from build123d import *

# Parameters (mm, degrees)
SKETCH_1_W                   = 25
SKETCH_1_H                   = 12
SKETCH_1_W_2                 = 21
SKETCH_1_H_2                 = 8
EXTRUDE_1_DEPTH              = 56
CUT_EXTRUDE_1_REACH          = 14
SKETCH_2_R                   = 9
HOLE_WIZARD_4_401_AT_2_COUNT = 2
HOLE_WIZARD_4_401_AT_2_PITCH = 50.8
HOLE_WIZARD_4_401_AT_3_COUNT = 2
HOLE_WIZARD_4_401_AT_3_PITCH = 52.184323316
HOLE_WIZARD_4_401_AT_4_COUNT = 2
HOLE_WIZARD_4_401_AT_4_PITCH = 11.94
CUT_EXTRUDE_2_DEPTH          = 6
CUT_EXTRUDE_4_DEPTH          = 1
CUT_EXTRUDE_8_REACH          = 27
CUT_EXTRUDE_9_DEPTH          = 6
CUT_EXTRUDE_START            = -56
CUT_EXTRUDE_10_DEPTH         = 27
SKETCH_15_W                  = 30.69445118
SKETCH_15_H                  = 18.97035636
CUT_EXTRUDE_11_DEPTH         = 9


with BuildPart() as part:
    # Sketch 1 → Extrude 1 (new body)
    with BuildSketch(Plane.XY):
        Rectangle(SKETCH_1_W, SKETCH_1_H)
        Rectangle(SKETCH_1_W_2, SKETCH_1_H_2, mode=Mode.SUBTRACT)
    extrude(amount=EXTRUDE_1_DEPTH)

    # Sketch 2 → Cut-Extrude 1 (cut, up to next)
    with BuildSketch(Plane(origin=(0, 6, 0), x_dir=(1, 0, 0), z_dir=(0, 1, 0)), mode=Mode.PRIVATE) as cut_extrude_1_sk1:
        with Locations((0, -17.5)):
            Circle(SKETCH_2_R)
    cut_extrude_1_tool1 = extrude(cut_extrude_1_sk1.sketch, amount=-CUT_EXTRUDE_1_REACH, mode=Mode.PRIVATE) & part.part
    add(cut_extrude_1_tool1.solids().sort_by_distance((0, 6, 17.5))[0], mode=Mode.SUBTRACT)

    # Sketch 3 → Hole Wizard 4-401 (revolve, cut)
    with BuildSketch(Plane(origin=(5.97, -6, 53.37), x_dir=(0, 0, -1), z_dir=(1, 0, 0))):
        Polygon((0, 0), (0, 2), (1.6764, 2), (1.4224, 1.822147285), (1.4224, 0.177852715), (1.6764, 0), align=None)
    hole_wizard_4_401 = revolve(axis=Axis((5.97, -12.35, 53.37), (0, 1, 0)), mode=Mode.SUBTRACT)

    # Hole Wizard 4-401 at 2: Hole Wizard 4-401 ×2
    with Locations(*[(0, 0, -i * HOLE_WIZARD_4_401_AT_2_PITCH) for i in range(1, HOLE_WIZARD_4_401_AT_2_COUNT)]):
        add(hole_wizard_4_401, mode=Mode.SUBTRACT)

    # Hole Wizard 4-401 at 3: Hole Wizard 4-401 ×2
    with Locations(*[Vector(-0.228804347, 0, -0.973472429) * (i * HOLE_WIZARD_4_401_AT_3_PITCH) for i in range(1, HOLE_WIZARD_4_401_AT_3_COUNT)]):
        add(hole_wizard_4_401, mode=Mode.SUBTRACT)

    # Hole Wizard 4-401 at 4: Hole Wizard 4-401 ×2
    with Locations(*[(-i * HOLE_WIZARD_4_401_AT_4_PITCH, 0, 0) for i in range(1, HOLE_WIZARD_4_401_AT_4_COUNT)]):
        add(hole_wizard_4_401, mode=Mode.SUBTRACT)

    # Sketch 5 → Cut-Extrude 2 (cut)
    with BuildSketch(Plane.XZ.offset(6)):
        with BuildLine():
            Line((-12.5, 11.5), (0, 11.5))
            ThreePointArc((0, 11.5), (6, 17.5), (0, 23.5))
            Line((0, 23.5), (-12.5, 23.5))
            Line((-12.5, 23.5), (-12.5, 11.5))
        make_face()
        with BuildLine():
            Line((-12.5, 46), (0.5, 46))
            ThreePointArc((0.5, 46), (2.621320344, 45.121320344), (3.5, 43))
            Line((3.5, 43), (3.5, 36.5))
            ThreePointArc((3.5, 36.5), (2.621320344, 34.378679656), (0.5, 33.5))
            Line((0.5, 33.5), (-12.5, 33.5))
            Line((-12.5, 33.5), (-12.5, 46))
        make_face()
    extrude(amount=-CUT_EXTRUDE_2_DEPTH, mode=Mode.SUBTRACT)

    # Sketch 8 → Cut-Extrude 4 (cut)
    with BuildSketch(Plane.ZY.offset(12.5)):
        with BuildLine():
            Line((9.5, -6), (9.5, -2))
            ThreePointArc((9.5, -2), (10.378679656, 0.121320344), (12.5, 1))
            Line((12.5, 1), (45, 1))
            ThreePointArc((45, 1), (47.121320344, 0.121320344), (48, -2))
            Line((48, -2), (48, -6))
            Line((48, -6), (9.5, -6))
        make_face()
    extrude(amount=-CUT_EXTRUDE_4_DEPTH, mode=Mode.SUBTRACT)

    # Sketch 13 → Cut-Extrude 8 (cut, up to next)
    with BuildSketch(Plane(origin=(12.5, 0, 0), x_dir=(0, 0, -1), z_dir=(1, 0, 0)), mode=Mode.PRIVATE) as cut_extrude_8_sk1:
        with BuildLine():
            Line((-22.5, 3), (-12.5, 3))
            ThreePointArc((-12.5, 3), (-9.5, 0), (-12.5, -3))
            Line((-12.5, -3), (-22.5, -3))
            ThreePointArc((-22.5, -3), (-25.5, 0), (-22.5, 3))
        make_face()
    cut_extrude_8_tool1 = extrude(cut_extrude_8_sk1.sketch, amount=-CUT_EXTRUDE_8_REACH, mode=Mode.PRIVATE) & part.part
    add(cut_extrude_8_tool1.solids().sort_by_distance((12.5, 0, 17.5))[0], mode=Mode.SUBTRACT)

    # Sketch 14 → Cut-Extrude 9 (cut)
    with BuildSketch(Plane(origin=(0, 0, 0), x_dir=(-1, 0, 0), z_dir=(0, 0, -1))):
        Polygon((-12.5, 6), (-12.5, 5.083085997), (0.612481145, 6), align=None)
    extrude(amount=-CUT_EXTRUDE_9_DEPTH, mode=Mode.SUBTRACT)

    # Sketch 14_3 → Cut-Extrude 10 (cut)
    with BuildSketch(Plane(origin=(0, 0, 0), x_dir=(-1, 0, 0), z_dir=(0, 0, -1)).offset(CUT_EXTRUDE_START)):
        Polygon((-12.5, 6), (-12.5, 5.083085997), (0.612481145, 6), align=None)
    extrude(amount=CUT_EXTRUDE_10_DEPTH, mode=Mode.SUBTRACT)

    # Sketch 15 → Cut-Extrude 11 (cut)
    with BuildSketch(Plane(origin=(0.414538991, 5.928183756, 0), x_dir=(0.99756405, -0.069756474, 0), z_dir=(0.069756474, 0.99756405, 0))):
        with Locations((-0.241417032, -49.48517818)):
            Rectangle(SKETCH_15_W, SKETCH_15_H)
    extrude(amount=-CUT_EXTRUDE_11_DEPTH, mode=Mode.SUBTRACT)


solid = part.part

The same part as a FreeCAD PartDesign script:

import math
import FreeCAD as App
import Part
import Sketcher

V = App.Vector
Q = App.Units.Quantity

doc = App.newDocument("Part")
body = doc.addObject("PartDesign::Body", "Body")

# Sketch on XY plane
sketch1 = body.newObject("Sketcher::SketchObject", "Sketch")
sketch1.AttachmentSupport = (doc.getObject("XY_Plane"), [""])
sketch1.MapMode = "FlatFace"
sketch1.addGeometry([
    Part.LineSegment(V(-12, 6, 0), V(-12, -6, 0)),  # 0
    Part.LineSegment(V(-12, -6, 0), V(12, -6, 0)),  # 1
    Part.LineSegment(V(12, -6, 0), V(12, 6, 0)),  # 2
    Part.LineSegment(V(12, 6, 0), V(-12, 6, 0)),  # 3
    Part.LineSegment(V(10, -4, 0), V(-10, -4, 0)),  # 4
    Part.LineSegment(V(-10, -4, 0), V(-10, 4, 0)),  # 5
    Part.LineSegment(V(-10, 4, 0), V(10, 4, 0)),  # 6
    Part.LineSegment(V(10, 4, 0), V(10, -4, 0)),  # 7
], False)
sketch1.addConstraint([
    Sketcher.Constraint("Coincident", 0, 2, 1, 1),
    Sketcher.Constraint("Coincident", 1, 2, 2, 1),
    Sketcher.Constraint("Coincident", 2, 2, 3, 1),
    Sketcher.Constraint("Coincident", 3, 2, 0, 1),
    Sketcher.Constraint("Coincident", 4, 2, 5, 1),
    Sketcher.Constraint("Coincident", 5, 2, 6, 1),
    Sketcher.Constraint("Coincident", 6, 2, 7, 1),
    Sketcher.Constraint("Coincident", 7, 2, 4, 1),
    Sketcher.Constraint("Vertical", 0),
    Sketcher.Constraint("Horizontal", 1),
    Sketcher.Constraint("Vertical", 2),
    Sketcher.Constraint("Horizontal", 3),
    Sketcher.Constraint("Horizontal", 4),
    Sketcher.Constraint("Vertical", 5),
    Sketcher.Constraint("Horizontal", 6),
    Sketcher.Constraint("Vertical", 7),
    Sketcher.Constraint("Symmetric", 0, 2, 2, 2, -1, 1),
    Sketcher.Constraint("Symmetric", 4, 2, 6, 2, -1, 1),
    Sketcher.Constraint("DistanceX", 1, 1, 1, 2, Q("25 mm")),
    Sketcher.Constraint("DistanceX", 4, 2, 4, 1, Q("21 mm")),
    Sketcher.Constraint("DistanceY", 0, 2, 0, 1, Q("12 mm")),
    Sketcher.Constraint("DistanceY", 5, 1, 5, 2, Q("8 mm")),
])
pad1 = body.newObject("PartDesign::Pad", "Pad")
pad1.Profile = sketch1
pad1.Length = 56

# Sketch on XZ plane
sketch2 = body.newObject("Sketcher::SketchObject", "Sketch001")
sketch2.AttachmentSupport = (doc.getObject("XZ_Plane"), [""])
sketch2.MapMode = "FlatFace"
sketch2.AttachmentOffset = App.Placement(V(0, 0, -6), App.Rotation())
sketch2.addGeometry(Part.Circle(V(0, 18, 0), V(0, 0, 1), 9), False)
sketch2.addConstraint([
    Sketcher.Constraint("PointOnObject", 0, 3, -2),
    Sketcher.Constraint("Diameter", 0, Q("18 mm")),
    Sketcher.Constraint("DistanceY", -1, 1, 0, 3, Q("17.5 mm")),
])
pocket1 = body.newObject("PartDesign::Pocket", "Pocket")
pocket1.Profile = sketch2
pocket1.Type = "UpToFirst"
pocket1.Reversed = True

# Sketch on YZ plane
sketch3 = body.newObject("Sketcher::SketchObject", "Sketch002")
sketch3.AttachmentSupport = (doc.getObject("YZ_Plane"), [""])
sketch3.MapMode = "FlatFace"
sketch3.AttachmentOffset = App.Placement(V(0, 0, 5.97), App.Rotation())
sketch3.addGeometry([
    Part.LineSegment(V(-4, 53.37, 0), V(-6, 53.37, 0)),  # 0
    Part.LineSegment(V(-6, 53.37, 0), V(-6, 51.69, 0)),  # 1
    Part.LineSegment(V(-6, 51.69, 0), V(-5.82, 51.95, 0)),  # 2
    Part.LineSegment(V(-5.82, 51.95, 0), V(-4.18, 51.95, 0)),  # 3
    Part.LineSegment(V(-4.18, 51.95, 0), V(-4, 51.69, 0)),  # 4
    Part.LineSegment(V(-4, 51.69, 0), V(-4, 53.37, 0)),  # 5
], False)
sketch3.addGeometry(Part.LineSegment(V(-6, 53.37, 0), V(-4, 53.37, 0)), True)  # axis
sketch3.addConstraint([
    Sketcher.Constraint("Coincident", 0, 2, 1, 1),
    Sketcher.Constraint("Coincident", 1, 2, 2, 1),
    Sketcher.Constraint("Coincident", 2, 2, 3, 1),
    Sketcher.Constraint("Coincident", 3, 2, 4, 1),
    Sketcher.Constraint("Coincident", 4, 2, 5, 1),
    Sketcher.Constraint("Coincident", 5, 2, 0, 1),
    Sketcher.Constraint("Horizontal", 0),
    Sketcher.Constraint("Vertical", 1),
    Sketcher.Constraint("Horizontal", 3),
    Sketcher.Constraint("Vertical", 5),
    Sketcher.Constraint("Horizontal", 6),
    Sketcher.Constraint("Coincident", 6, 1, 0, 2),
    Sketcher.Constraint("Horizontal", 1, 2, 4, 2),
    Sketcher.Constraint("Vertical", 4, 2, 6, 2),
    Sketcher.Constraint("Equal", 2, 4),
    Sketcher.Constraint("DistanceX", 0, 2, 0, 1, Q("2 mm")),
    Sketcher.Constraint("Angle", 2, Q("55 deg")),
    Sketcher.Constraint("DistanceX", 0, 2, -1, 1, Q("6 mm")),
    Sketcher.Constraint("DistanceY", -1, 1, 0, 2, Q("53.37 mm")),
    Sketcher.Constraint("DistanceY", 1, 2, 1, 1, Q("1.6764 mm")),
    Sketcher.Constraint("DistanceY", 1, 2, 2, 2, Q("0.254 mm")),
])
groove = body.newObject("PartDesign::Groove", "Groove")
groove.Profile = sketch3
groove.ReferenceAxis = (sketch3, ["Axis0"])
groove.Angle = 360
doc.recompute()

linearpattern = body.newObject("PartDesign::LinearPattern", "LinearPattern")
linearpattern.Originals = [groove]
linearpattern.Direction = (doc.getObject("Z_Axis"), [""])
linearpattern.Mode = "offset"
linearpattern.Offset = 50.8
linearpattern.Occurrences = 2
linearpattern.Reversed = True
body.Tip = linearpattern
doc.recompute()

datumline = body.newObject("PartDesign::Line", "DatumLine")
datumline.Placement = App.Placement(V(0, 0, 0), App.Rotation(V(0, 0, 1), V(-0.228804347, 0, -0.973472429)))
linearpattern2 = body.newObject("PartDesign::LinearPattern", "LinearPattern001")
linearpattern2.Originals = [groove]
linearpattern2.Direction = (datumline, [""])
linearpattern2.Mode = "offset"
linearpattern2.Offset = 52.184323
linearpattern2.Occurrences = 2
body.Tip = linearpattern2
doc.recompute()

linearpattern3 = body.newObject("PartDesign::LinearPattern", "LinearPattern002")
linearpattern3.Originals = [groove]
linearpattern3.Direction = (doc.getObject("X_Axis"), [""])
linearpattern3.Mode = "offset"
linearpattern3.Offset = 11.94
linearpattern3.Occurrences = 2
linearpattern3.Reversed = True
body.Tip = linearpattern3

# Sketch on XZ plane
sketch4 = body.newObject("Sketcher::SketchObject", "Sketch003")
sketch4.AttachmentSupport = (doc.getObject("XZ_Plane"), [""])
sketch4.MapMode = "FlatFace"
sketch4.AttachmentOffset = App.Placement(V(0, 0, 6), App.Rotation())
sketch4.addGeometry([
    Part.LineSegment(V(-12.5, 11.5, 0), V(0, 11.5, 0)),  # 0
    Part.ArcOfCircle(Part.Circle(V(0, 17.5, 0), V(0, 0, 1), 6), math.radians(-90), math.radians(90)),  # 1
    Part.LineSegment(V(0, 23.5, 0), V(-12.5, 23.5, 0)),  # 2
    Part.LineSegment(V(-12.5, 23.5, 0), V(-12.5, 11.5, 0)),  # 3
    Part.LineSegment(V(0.5, 46, 0), V(-12.5, 46, 0)),  # 4
    Part.LineSegment(V(-12.5, 46, 0), V(-12.5, 33.5, 0)),  # 5
    Part.LineSegment(V(-12.5, 33.5, 0), V(0.5, 33.5, 0)),  # 6
    Part.ArcOfCircle(Part.Circle(V(0.5, 36.5, 0), V(0, 0, 1), 3), math.radians(-90), math.radians(0)),  # 7
    Part.LineSegment(V(3.5, 36.5, 0), V(3.5, 43, 0)),  # 8
    Part.ArcOfCircle(Part.Circle(V(0.5, 43, 0), V(0, 0, 1), 3), math.radians(0), math.radians(90)),  # 9
], False)
sketch4.addConstraint([
    Sketcher.Constraint("Tangent", 0, 2, 1, 1),
    Sketcher.Constraint("Tangent", 1, 2, 2, 1),
    Sketcher.Constraint("Coincident", 2, 2, 3, 1),
    Sketcher.Constraint("Coincident", 3, 2, 0, 1),
    Sketcher.Constraint("Coincident", 4, 2, 5, 1),
    Sketcher.Constraint("Coincident", 5, 2, 6, 1),
    Sketcher.Constraint("Tangent", 6, 2, 7, 1),
    Sketcher.Constraint("Tangent", 7, 2, 8, 1),
    Sketcher.Constraint("Tangent", 8, 2, 9, 1),
    Sketcher.Constraint("Tangent", 9, 2, 4, 1),
    Sketcher.Constraint("Horizontal", 0),
    Sketcher.Constraint("Horizontal", 2),
    Sketcher.Constraint("Vertical", 3),
    Sketcher.Constraint("Horizontal", 4),
    Sketcher.Constraint("Vertical", 5),
    Sketcher.Constraint("Horizontal", 6),
    Sketcher.Constraint("Vertical", 8),
    Sketcher.Constraint("Equal", 7, 9),
    Sketcher.Constraint("PointOnObject", 1, 3, -2),
    Sketcher.Constraint("Vertical", 3, 2, 4, 2),
    Sketcher.Constraint("Equal", 2, 5),
    Sketcher.Constraint("Radius", 1, Q("6 mm")),
    Sketcher.Constraint("Radius", 7, Q("3 mm")),
    Sketcher.Constraint("DistanceX", 4, 2, 4, 1, Q("13 mm")),
    Sketcher.Constraint("DistanceX", 0, 1, 0, 2, Q("12.5 mm")),
    Sketcher.Constraint("DistanceY", -1, 1, 9, 3, Q("43 mm")),
    Sketcher.Constraint("DistanceY", 1, 3, 7, 3, Q("19 mm")),
])
pocket2 = body.newObject("PartDesign::Pocket", "Pocket001")
pocket2.Profile = sketch4
pocket2.Length = 6

# Sketch on YZ plane
sketch5 = body.newObject("Sketcher::SketchObject", "Sketch004")
sketch5.AttachmentSupport = (doc.getObject("YZ_Plane"), [""])
sketch5.MapMode = "FlatFace"
sketch5.AttachmentOffset = App.Placement(V(0, 0, -12.5), App.Rotation())
sketch5.addGeometry([
    Part.LineSegment(V(-2, 9.5, 0), V(-6, 9.5, 0)),  # 0
    Part.LineSegment(V(-6, 9.5, 0), V(-6, 48, 0)),  # 1
    Part.LineSegment(V(-6, 48, 0), V(-2, 48, 0)),  # 2
    Part.ArcOfCircle(Part.Circle(V(-2, 45, 0), V(0, 0, 1), 3), math.radians(0), math.radians(90)),  # 3
    Part.LineSegment(V(1, 45, 0), V(1, 12.5, 0)),  # 4
    Part.ArcOfCircle(Part.Circle(V(-2, 12.5, 0), V(0, 0, 1), 3), math.radians(-90), math.radians(0)),  # 5
], False)
sketch5.addConstraint([
    Sketcher.Constraint("Coincident", 0, 2, 1, 1),
    Sketcher.Constraint("Coincident", 1, 2, 2, 1),
    Sketcher.Constraint("Tangent", 2, 2, 3, 2),
    Sketcher.Constraint("Tangent", 3, 1, 4, 1),
    Sketcher.Constraint("Tangent", 4, 2, 5, 2),
    Sketcher.Constraint("Tangent", 5, 1, 0, 1),
    Sketcher.Constraint("Horizontal", 0),
    Sketcher.Constraint("Vertical", 1),
    Sketcher.Constraint("Horizontal", 2),
    Sketcher.Constraint("Vertical", 4),
    Sketcher.Constraint("Equal", 3, 5),
    Sketcher.Constraint("Radius", 3, Q("3 mm")),
    Sketcher.Constraint("DistanceX", 0, 2, 0, 1, Q("4 mm")),
    Sketcher.Constraint("DistanceY", 1, 1, 1, 2, Q("38.5 mm")),
    Sketcher.Constraint("DistanceX", 3, 3, -1, 1, Q("2 mm")),
    Sketcher.Constraint("DistanceY", -1, 1, 3, 3, Q("45 mm")),
])
pocket3 = body.newObject("PartDesign::Pocket", "Pocket002")
pocket3.Profile = sketch5
pocket3.Length = 1
pocket3.Reversed = True

# Sketch on YZ plane
sketch6 = body.newObject("Sketcher::SketchObject", "Sketch005")
sketch6.AttachmentSupport = (doc.getObject("YZ_Plane"), [""])
sketch6.MapMode = "FlatFace"
sketch6.AttachmentOffset = App.Placement(V(0, 0, 12.5), App.Rotation())
sketch6.addGeometry([
    Part.LineSegment(V(3, 12.5, 0), V(3, 22.5, 0)),
    Part.ArcOfCircle(Part.Circle(V(0, 22.5, 0), V(0, 0, 1), 3), math.radians(0), math.radians(180)),
    Part.LineSegment(V(-3, 22.5, 0), V(-3, 12.5, 0)),
    Part.ArcOfCircle(Part.Circle(V(0, 12.5, 0), V(0, 0, 1), 3), math.radians(180), math.radians(360)),
], False)
sketch6.addConstraint([
    Sketcher.Constraint("Tangent", 0, 2, 1, 1),
    Sketcher.Constraint("Tangent", 1, 2, 2, 1),
    Sketcher.Constraint("Tangent", 2, 2, 3, 1),
    Sketcher.Constraint("Tangent", 3, 2, 0, 1),
    Sketcher.Constraint("Vertical", 0),
    Sketcher.Constraint("Vertical", 2),
    Sketcher.Constraint("PointOnObject", 1, 3, -2),
    Sketcher.Constraint("Radius", 1, Q("3 mm")),
    Sketcher.Constraint("DistanceY", 0, 1, 0, 2, Q("10 mm")),
    Sketcher.Constraint("DistanceY", -1, 1, 1, 3, Q("22.5 mm")),
])
pocket4 = body.newObject("PartDesign::Pocket", "Pocket003")
pocket4.Profile = sketch6
pocket4.Type = "UpToFirst"

# Sketch on XY plane
sketch7 = body.newObject("Sketcher::SketchObject", "Sketch006")
sketch7.AttachmentSupport = (doc.getObject("XY_Plane"), [""])
sketch7.MapMode = "FlatFace"
sketch7.addGeometry([
    Part.LineSegment(V(12.5, 6, 0), V(12.5, 5.1, 0)),
    Part.LineSegment(V(12.5, 5.1, 0), V(-0.6, 6, 0)),
    Part.LineSegment(V(-0.6, 6, 0), V(12.5, 6, 0)),
], False)
sketch7.addConstraint([
    Sketcher.Constraint("Coincident", 0, 2, 1, 1),
    Sketcher.Constraint("Coincident", 1, 2, 2, 1),
    Sketcher.Constraint("Coincident", 2, 2, 0, 1),
    Sketcher.Constraint("Vertical", 0),
    Sketcher.Constraint("Horizontal", 2),
    Sketcher.Constraint("Angle", 1, Q("176 deg")),
    Sketcher.Constraint("DistanceY", -1, 1, 1, 2, Q("6 mm")),
    Sketcher.Constraint("DistanceX", -1, 1, 0, 2, Q("12.5 mm")),
    Sketcher.Constraint("Distance", 1, Q("13.1445 mm")),
])
pocket5 = body.newObject("PartDesign::Pocket", "Pocket004")
pocket5.Profile = sketch7
pocket5.Length = 6
pocket5.Reversed = True

# Sketch on XY plane
sketch8 = body.newObject("Sketcher::SketchObject", "Sketch007")
sketch8.AttachmentSupport = (doc.getObject("XY_Plane"), [""])
sketch8.MapMode = "FlatFace"
sketch8.AttachmentOffset = App.Placement(V(0, 0, 56), App.Rotation())
sketch8.addGeometry([
    Part.LineSegment(V(12.5, 6, 0), V(12.5, 5.1, 0)),
    Part.LineSegment(V(12.5, 5.1, 0), V(-0.6, 6, 0)),
    Part.LineSegment(V(-0.6, 6, 0), V(12.5, 6, 0)),
], False)
sketch8.addConstraint([
    Sketcher.Constraint("Coincident", 0, 2, 1, 1),
    Sketcher.Constraint("Coincident", 1, 2, 2, 1),
    Sketcher.Constraint("Coincident", 2, 2, 0, 1),
    Sketcher.Constraint("Vertical", 0),
    Sketcher.Constraint("Horizontal", 2),
    Sketcher.Constraint("Angle", 1, Q("176 deg")),
    Sketcher.Constraint("DistanceY", -1, 1, 1, 2, Q("6 mm")),
    Sketcher.Constraint("DistanceX", -1, 1, 0, 2, Q("12.5 mm")),
    Sketcher.Constraint("Distance", 1, Q("13.1445 mm")),
])
pocket6 = body.newObject("PartDesign::Pocket", "Pocket005")
pocket6.Profile = sketch8
pocket6.Length = 27

# Sketch on an angled plane
sketch9 = body.newObject("Sketcher::SketchObject", "Sketch008")
sketch9.Placement = App.Placement(V(0.414539, 5.928184, 0), App.Rotation(V(0.99756405, -0.069756474, 0), V(0, 0, -1), V(0.069756474, 0.99756405, 0), "ZXY"))
sketch9.addGeometry([
    Part.LineSegment(V(-16, -40, 0), V(-16, -59, 0)),
    Part.LineSegment(V(-16, -59, 0), V(15, -59, 0)),
    Part.LineSegment(V(15, -59, 0), V(15, -40, 0)),
    Part.LineSegment(V(15, -40, 0), V(-16, -40, 0)),
], False)
sketch9.addConstraint([
    Sketcher.Constraint("Coincident", 0, 2, 1, 1),
    Sketcher.Constraint("Coincident", 1, 2, 2, 1),
    Sketcher.Constraint("Coincident", 2, 2, 3, 1),
    Sketcher.Constraint("Coincident", 3, 2, 0, 1),
    Sketcher.Constraint("Vertical", 0),
    Sketcher.Constraint("Horizontal", 1),
    Sketcher.Constraint("Vertical", 2),
    Sketcher.Constraint("Horizontal", 3),
    Sketcher.Constraint("DistanceY", 2, 2, -1, 1, Q("40 mm")),
    Sketcher.Constraint("DistanceX", 1, 1, 1, 2, Q("30.694451 mm")),
    Sketcher.Constraint("DistanceY", 0, 2, 0, 1, Q("18.970356 mm")),
    Sketcher.Constraint("DistanceX", -1, 1, 1, 2, Q("15.105809 mm")),
])
pocket7 = body.newObject("PartDesign::Pocket", "Pocket006")
pocket7.Profile = sketch9
pocket7.Length = 9

doc.recompute()
